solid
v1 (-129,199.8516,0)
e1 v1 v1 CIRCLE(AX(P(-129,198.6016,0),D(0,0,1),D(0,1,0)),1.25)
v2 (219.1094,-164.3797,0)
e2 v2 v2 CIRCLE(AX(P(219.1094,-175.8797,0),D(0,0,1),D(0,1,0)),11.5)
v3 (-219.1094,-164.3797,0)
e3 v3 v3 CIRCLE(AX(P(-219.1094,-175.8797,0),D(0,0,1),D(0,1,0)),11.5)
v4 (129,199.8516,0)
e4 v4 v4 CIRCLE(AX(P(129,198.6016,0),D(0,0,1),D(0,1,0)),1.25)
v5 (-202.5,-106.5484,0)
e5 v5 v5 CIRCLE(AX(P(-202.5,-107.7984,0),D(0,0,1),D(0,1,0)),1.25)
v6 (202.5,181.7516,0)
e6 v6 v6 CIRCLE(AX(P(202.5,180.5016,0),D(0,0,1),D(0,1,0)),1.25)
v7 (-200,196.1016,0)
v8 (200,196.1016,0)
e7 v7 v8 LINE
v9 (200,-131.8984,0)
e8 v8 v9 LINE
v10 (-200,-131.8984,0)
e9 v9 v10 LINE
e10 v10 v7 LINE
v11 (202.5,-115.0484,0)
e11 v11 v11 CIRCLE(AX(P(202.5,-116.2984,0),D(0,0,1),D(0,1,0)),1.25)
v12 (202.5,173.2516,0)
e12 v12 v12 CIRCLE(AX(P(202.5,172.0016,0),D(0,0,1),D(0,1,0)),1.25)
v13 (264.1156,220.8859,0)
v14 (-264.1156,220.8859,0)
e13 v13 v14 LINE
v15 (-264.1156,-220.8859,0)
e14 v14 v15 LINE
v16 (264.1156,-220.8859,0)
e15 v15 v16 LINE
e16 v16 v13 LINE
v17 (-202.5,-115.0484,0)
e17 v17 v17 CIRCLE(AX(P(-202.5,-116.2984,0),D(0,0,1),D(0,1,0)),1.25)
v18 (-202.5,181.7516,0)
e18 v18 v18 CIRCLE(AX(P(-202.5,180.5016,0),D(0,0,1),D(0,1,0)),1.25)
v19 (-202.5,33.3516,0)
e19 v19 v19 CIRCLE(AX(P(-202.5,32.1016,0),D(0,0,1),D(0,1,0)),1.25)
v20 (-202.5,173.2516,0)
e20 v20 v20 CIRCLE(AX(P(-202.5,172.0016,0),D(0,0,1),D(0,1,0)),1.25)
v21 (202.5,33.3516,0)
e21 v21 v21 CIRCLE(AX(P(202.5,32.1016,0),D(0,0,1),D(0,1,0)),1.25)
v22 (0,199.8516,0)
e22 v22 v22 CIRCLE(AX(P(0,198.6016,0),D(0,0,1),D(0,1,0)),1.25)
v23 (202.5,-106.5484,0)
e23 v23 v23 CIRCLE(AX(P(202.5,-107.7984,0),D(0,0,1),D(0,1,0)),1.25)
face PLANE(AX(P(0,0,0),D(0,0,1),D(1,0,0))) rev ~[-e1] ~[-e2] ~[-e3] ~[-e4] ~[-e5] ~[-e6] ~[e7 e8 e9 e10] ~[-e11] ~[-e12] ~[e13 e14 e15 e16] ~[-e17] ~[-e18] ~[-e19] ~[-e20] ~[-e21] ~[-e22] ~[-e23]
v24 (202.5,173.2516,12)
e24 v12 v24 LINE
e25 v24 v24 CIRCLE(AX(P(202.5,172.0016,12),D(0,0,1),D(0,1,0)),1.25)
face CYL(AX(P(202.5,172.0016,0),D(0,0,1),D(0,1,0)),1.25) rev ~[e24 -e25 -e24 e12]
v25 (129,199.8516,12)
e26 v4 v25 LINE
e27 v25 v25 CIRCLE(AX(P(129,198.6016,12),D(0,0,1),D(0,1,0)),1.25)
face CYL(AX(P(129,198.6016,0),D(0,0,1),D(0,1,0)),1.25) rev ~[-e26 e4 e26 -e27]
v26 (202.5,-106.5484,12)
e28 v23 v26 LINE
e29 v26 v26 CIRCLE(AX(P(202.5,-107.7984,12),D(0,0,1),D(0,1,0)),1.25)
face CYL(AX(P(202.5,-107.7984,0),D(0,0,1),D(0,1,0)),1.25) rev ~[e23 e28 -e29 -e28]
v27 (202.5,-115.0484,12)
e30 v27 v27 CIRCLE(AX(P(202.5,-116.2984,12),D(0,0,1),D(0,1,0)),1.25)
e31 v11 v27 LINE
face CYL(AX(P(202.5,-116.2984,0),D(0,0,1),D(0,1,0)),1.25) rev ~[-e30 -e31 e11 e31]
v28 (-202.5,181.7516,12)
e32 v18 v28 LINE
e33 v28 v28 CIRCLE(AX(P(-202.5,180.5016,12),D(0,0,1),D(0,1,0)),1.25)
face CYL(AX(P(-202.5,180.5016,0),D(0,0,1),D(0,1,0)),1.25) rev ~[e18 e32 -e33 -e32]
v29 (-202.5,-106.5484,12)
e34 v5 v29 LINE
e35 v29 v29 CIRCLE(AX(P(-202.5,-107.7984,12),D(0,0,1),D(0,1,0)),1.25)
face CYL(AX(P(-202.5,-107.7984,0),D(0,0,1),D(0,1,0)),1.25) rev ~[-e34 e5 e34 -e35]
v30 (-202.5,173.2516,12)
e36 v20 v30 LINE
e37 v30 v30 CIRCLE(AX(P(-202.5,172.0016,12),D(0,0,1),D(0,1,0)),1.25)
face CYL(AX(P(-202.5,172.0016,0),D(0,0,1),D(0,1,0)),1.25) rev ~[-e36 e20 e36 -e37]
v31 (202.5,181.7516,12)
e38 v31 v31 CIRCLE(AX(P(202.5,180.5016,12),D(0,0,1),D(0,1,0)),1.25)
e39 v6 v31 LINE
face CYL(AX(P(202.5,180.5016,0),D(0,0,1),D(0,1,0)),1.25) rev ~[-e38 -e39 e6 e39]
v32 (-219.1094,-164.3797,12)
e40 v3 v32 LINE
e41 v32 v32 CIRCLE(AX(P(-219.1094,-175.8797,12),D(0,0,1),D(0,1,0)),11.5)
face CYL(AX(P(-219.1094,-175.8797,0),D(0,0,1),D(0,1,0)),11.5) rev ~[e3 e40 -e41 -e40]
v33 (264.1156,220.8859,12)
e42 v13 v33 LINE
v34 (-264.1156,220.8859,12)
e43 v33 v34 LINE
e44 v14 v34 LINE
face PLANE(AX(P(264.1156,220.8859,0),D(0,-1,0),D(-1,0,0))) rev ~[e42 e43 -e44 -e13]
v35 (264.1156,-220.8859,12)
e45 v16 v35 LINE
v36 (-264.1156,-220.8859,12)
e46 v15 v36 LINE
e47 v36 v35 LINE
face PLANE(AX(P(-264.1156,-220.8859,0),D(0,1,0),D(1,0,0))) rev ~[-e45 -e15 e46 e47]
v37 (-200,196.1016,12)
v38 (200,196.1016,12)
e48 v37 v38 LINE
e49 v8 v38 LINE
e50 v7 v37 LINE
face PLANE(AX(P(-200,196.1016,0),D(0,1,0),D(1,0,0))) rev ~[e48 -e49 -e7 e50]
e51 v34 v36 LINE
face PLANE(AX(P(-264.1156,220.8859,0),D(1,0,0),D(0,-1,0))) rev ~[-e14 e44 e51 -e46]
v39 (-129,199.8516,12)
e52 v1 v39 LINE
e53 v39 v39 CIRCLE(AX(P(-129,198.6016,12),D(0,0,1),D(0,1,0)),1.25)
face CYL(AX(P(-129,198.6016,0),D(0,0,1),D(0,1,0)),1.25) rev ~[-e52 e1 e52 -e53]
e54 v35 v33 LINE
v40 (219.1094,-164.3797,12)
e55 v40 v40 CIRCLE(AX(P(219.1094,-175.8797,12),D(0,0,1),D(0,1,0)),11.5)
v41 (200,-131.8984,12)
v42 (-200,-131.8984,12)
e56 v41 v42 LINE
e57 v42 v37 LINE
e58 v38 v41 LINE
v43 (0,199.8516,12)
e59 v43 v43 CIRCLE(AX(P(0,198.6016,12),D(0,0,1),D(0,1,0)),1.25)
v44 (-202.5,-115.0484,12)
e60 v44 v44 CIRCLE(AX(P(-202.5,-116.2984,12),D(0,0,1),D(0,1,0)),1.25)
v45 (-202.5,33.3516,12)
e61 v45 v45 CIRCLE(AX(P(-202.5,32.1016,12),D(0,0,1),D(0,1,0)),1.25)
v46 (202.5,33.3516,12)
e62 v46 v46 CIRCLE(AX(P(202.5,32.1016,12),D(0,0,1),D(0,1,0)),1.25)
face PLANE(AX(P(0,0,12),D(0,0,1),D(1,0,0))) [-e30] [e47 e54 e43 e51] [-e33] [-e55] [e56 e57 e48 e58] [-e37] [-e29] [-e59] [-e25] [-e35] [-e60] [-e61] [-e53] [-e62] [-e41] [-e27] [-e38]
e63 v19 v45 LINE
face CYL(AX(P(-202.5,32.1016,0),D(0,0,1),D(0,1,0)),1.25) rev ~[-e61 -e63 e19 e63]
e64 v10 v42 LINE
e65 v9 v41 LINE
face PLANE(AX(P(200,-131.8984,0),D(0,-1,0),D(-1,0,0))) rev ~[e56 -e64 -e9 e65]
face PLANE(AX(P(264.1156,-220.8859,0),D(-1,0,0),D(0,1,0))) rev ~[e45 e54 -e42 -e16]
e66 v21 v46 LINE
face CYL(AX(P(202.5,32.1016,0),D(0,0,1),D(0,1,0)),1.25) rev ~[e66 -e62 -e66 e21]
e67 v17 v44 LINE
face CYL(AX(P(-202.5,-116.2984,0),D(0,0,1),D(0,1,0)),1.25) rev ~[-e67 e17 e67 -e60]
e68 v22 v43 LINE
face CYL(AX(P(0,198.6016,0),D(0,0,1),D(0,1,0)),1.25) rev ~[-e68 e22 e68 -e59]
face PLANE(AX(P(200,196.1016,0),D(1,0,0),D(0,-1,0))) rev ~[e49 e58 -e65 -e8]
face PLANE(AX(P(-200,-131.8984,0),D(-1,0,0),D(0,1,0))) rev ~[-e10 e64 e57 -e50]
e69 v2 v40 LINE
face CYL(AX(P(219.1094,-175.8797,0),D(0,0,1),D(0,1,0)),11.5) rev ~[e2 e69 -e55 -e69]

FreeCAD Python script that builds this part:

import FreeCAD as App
import Part
import Sketcher
from FreeCAD import Vector
Q = App.Units.Quantity


def add_polygon(sketch, points):
    """Adds a closed chain of lines whose ends are joined by coincident constraints."""
    first, n = sketch.GeometryCount, len(points)
    for a, b in zip(points, points[1:] + points[:1]):
        sketch.addGeometry(Part.LineSegment(App.Vector(*a, 0), App.Vector(*b, 0)), False)
    for i in range(n):
        sketch.addConstraint(Sketcher.Constraint("Coincident", first + i, 2, first + (i + 1) % n, 1))

doc = App.newDocument("Part")
body = doc.addObject("PartDesign::Body", "Body")

# Sketch on XY plane
sketch1 = doc.addObject("Sketcher::SketchObject", "Sketch")
body.addObject(sketch1)
sketch1.AttachmentSupport = (doc.XY_Plane, [""])
sketch1.MapMode = "FlatFace"
add_polygon(sketch1, [(264.1156, 220.8859), (-264.1156, 220.8859), (-264.1156, -220.8859), (264.1156, -220.8859)])  # lines 0-3
add_polygon(sketch1, [(-200, -131.8984), (-200, 196.1016), (200, 196.1016), (200, -131.8984)])  # lines 4-7
sketch1.addConstraint([
    Sketcher.Constraint("Horizontal", 0),
    Sketcher.Constraint("Vertical", 1),
    Sketcher.Constraint("Horizontal", 2),
    Sketcher.Constraint("Vertical", 3),
    Sketcher.Constraint("Vertical", 4),
    Sketcher.Constraint("Horizontal", 5),
    Sketcher.Constraint("Vertical", 6),
    Sketcher.Constraint("Horizontal", 7),
    Sketcher.Constraint("Symmetric", 0, 2, 2, 2, -1, 1),
    Sketcher.Constraint("DistanceX", 5, 1, 5, 2, Q("400 mm")),
    Sketcher.Constraint("DistanceY", 4, 1, 4, 2, Q("328 mm")),
    Sketcher.Constraint("DistanceX", 4, 2, -1, 1, Q("200 mm")),
    Sketcher.Constraint("DistanceX", 0, 2, 0, 1, Q("528.2312 mm")),
    Sketcher.Constraint("DistanceY", 1, 2, 1, 1, Q("441.7718 mm")),
    Sketcher.Constraint("DistanceY", -1, 1, 4, 2, Q("196.1016 mm")),
])
pad1 = doc.addObject("PartDesign::Pad", "Pad")
body.addObject(pad1)
pad1.Profile = sketch1
pad1.Length = 12

# Sketch on XY plane
sketch2 = doc.addObject("Sketcher::SketchObject", "Sketch001")
body.addObject(sketch2)
sketch2.AttachmentSupport = (doc.XY_Plane, [""])
sketch2.MapMode = "FlatFace"
sketch2.addGeometry([
    Part.Circle(Vector(219.1094, -175.8797, 0), Vector(0, 0, 1), 11.5),
    Part.Circle(Vector(-219.1094, -175.8797, 0), Vector(0, 0, 1), 11.5),
], False)
sketch2.addConstraint([
    Sketcher.Constraint("Equal", 0, 1),
    Sketcher.Constraint("Symmetric", 0, 3, 1, 3, -2),
    Sketcher.Constraint("Diameter", 0, Q("23 mm")),
    Sketcher.Constraint("DistanceX", -1, 1, 0, 3, Q("219.1094 mm")),
    Sketcher.Constraint("DistanceY", 0, 3, -1, 1, Q("175.8797 mm")),
])
doc.recompute()
hole = doc.addObject("PartDesign::Hole", "Hole")
body.addObject(hole)
hole.Profile = sketch2
hole.ThreadType = "None"
hole.Diameter = 23
hole.DepthType = "ThroughAll"
hole.Reversed = True

# Sketch on XY plane
sketch3 = doc.addObject("Sketcher::SketchObject", "Sketch002")
body.addObject(sketch3)
sketch3.AttachmentSupport = (doc.XY_Plane, [""])
sketch3.MapMode = "FlatFace"
sketch3.addGeometry([
    Part.Circle(Vector(202.5, 180.5016, 0), Vector(0, 0, 1), 1.25),  # 0
    Part.Circle(Vector(202.5, 172.0016, 0), Vector(0, 0, 1), 1.25),  # 1
    Part.Circle(Vector(129, 198.6016, 0), Vector(0, 0, 1), 1.25),  # 2
    Part.Circle(Vector(0, 198.6016, 0), Vector(0, 0, 1), 1.25),  # 3
    Part.Circle(Vector(-129, 198.6016, 0), Vector(0, 0, 1), 1.25),  # 4
    Part.Circle(Vector(-202.5, 180.5016, 0), Vector(0, 0, 1), 1.25),  # 5
    Part.Circle(Vector(-202.5, 172.0016, 0), Vector(0, 0, 1), 1.25),  # 6
    Part.Circle(Vector(202.5, 32.1016, 0), Vector(0, 0, 1), 1.25),  # 7
    Part.Circle(Vector(202.5, -116.2984, 0), Vector(0, 0, 1), 1.25),  # 8
    Part.Circle(Vector(202.5, -107.7984, 0), Vector(0, 0, 1), 1.25),  # 9
    Part.Circle(Vector(-202.5, -116.2984, 0), Vector(0, 0, 1), 1.25),  # 10
    Part.Circle(Vector(-202.5, 32.1016, 0), Vector(0, 0, 1), 1.25),  # 11
    Part.Circle(Vector(-202.5, -107.7984, 0), Vector(0, 0, 1), 1.25),  # 12
], False)
sketch3.addConstraint([
    Sketcher.Constraint("Equal", 0, 1),
    Sketcher.Constraint("Equal", 1, 2),
    Sketcher.Constraint("Equal", 2, 3),
    Sketcher.Constraint("Equal", 3, 4),
    Sketcher.Constraint("Equal", 4, 5),
    Sketcher.Constraint("Equal", 5, 6),
    Sketcher.Constraint("Equal", 6, 7),
    Sketcher.Constraint("Equal", 7, 8),
    Sketcher.Constraint("Equal", 8, 9),
    Sketcher.Constraint("Equal", 9, 10),
    Sketcher.Constraint("Equal", 10, 11),
    Sketcher.Constraint("Equal", 11, 12),
    Sketcher.Constraint("Symmetric", 2, 3, 4, 3, -2),
    Sketcher.Constraint("Symmetric", 0, 3, 5, 3, -2),
    Sketcher.Constraint("Symmetric", 1, 3, 6, 3, -2),
    Sketcher.Constraint("Symmetric", 8, 3, 10, 3, -2),
    Sketcher.Constraint("Symmetric", 7, 3, 11, 3, -2),
    Sketcher.Constraint("Symmetric", 9, 3, 12, 3, -2),
    Sketcher.Constraint("PointOnObject", 3, 3, -2),
    Sketcher.Constraint("Horizontal", 2, 3, 3, 3),
    Sketcher.Constraint("Vertical", 0, 3, 1, 3),
    Sketcher.Constraint("Vertical", 1, 3, 7, 3),
    Sketcher.Constraint("Vertical", 7, 3, 8, 3),
    Sketcher.Constraint("Vertical", 8, 3, 9, 3),
    Sketcher.Constraint("Diameter", 0, Q("2.5 mm")),
    Sketcher.Constraint("DistanceX", -1, 1, 2, 3, Q("129 mm")),
    Sketcher.Constraint("DistanceX", 5, 3, 0, 3, Q("405 mm")),
    Sketcher.Constraint("DistanceY", 1, 3, 0, 3, Q("8.5 mm")),
    Sketcher.Constraint("DistanceY", 0, 3, 2, 3, Q("18.1 mm")),
    Sketcher.Constraint("DistanceY", 7, 3, 1, 3, Q("139.9 mm")),
    Sketcher.Constraint("DistanceY", 8, 3, 7, 3, Q("148.4 mm")),
    Sketcher.Constraint("DistanceY", 8, 3, 9, 3, Q("8.5 mm")),
    Sketcher.Constraint("DistanceY", -1, 1, 0, 3, Q("180.5016 mm")),
])
doc.recompute()
hole2 = doc.addObject("PartDesign::Hole", "Hole001")
body.addObject(hole2)
hole2.Profile = sketch3
hole2.ThreadType = "None"
hole2.Diameter = 2.5
hole2.DepthType = "ThroughAll"
hole2.Reversed = True

doc.recompute()
